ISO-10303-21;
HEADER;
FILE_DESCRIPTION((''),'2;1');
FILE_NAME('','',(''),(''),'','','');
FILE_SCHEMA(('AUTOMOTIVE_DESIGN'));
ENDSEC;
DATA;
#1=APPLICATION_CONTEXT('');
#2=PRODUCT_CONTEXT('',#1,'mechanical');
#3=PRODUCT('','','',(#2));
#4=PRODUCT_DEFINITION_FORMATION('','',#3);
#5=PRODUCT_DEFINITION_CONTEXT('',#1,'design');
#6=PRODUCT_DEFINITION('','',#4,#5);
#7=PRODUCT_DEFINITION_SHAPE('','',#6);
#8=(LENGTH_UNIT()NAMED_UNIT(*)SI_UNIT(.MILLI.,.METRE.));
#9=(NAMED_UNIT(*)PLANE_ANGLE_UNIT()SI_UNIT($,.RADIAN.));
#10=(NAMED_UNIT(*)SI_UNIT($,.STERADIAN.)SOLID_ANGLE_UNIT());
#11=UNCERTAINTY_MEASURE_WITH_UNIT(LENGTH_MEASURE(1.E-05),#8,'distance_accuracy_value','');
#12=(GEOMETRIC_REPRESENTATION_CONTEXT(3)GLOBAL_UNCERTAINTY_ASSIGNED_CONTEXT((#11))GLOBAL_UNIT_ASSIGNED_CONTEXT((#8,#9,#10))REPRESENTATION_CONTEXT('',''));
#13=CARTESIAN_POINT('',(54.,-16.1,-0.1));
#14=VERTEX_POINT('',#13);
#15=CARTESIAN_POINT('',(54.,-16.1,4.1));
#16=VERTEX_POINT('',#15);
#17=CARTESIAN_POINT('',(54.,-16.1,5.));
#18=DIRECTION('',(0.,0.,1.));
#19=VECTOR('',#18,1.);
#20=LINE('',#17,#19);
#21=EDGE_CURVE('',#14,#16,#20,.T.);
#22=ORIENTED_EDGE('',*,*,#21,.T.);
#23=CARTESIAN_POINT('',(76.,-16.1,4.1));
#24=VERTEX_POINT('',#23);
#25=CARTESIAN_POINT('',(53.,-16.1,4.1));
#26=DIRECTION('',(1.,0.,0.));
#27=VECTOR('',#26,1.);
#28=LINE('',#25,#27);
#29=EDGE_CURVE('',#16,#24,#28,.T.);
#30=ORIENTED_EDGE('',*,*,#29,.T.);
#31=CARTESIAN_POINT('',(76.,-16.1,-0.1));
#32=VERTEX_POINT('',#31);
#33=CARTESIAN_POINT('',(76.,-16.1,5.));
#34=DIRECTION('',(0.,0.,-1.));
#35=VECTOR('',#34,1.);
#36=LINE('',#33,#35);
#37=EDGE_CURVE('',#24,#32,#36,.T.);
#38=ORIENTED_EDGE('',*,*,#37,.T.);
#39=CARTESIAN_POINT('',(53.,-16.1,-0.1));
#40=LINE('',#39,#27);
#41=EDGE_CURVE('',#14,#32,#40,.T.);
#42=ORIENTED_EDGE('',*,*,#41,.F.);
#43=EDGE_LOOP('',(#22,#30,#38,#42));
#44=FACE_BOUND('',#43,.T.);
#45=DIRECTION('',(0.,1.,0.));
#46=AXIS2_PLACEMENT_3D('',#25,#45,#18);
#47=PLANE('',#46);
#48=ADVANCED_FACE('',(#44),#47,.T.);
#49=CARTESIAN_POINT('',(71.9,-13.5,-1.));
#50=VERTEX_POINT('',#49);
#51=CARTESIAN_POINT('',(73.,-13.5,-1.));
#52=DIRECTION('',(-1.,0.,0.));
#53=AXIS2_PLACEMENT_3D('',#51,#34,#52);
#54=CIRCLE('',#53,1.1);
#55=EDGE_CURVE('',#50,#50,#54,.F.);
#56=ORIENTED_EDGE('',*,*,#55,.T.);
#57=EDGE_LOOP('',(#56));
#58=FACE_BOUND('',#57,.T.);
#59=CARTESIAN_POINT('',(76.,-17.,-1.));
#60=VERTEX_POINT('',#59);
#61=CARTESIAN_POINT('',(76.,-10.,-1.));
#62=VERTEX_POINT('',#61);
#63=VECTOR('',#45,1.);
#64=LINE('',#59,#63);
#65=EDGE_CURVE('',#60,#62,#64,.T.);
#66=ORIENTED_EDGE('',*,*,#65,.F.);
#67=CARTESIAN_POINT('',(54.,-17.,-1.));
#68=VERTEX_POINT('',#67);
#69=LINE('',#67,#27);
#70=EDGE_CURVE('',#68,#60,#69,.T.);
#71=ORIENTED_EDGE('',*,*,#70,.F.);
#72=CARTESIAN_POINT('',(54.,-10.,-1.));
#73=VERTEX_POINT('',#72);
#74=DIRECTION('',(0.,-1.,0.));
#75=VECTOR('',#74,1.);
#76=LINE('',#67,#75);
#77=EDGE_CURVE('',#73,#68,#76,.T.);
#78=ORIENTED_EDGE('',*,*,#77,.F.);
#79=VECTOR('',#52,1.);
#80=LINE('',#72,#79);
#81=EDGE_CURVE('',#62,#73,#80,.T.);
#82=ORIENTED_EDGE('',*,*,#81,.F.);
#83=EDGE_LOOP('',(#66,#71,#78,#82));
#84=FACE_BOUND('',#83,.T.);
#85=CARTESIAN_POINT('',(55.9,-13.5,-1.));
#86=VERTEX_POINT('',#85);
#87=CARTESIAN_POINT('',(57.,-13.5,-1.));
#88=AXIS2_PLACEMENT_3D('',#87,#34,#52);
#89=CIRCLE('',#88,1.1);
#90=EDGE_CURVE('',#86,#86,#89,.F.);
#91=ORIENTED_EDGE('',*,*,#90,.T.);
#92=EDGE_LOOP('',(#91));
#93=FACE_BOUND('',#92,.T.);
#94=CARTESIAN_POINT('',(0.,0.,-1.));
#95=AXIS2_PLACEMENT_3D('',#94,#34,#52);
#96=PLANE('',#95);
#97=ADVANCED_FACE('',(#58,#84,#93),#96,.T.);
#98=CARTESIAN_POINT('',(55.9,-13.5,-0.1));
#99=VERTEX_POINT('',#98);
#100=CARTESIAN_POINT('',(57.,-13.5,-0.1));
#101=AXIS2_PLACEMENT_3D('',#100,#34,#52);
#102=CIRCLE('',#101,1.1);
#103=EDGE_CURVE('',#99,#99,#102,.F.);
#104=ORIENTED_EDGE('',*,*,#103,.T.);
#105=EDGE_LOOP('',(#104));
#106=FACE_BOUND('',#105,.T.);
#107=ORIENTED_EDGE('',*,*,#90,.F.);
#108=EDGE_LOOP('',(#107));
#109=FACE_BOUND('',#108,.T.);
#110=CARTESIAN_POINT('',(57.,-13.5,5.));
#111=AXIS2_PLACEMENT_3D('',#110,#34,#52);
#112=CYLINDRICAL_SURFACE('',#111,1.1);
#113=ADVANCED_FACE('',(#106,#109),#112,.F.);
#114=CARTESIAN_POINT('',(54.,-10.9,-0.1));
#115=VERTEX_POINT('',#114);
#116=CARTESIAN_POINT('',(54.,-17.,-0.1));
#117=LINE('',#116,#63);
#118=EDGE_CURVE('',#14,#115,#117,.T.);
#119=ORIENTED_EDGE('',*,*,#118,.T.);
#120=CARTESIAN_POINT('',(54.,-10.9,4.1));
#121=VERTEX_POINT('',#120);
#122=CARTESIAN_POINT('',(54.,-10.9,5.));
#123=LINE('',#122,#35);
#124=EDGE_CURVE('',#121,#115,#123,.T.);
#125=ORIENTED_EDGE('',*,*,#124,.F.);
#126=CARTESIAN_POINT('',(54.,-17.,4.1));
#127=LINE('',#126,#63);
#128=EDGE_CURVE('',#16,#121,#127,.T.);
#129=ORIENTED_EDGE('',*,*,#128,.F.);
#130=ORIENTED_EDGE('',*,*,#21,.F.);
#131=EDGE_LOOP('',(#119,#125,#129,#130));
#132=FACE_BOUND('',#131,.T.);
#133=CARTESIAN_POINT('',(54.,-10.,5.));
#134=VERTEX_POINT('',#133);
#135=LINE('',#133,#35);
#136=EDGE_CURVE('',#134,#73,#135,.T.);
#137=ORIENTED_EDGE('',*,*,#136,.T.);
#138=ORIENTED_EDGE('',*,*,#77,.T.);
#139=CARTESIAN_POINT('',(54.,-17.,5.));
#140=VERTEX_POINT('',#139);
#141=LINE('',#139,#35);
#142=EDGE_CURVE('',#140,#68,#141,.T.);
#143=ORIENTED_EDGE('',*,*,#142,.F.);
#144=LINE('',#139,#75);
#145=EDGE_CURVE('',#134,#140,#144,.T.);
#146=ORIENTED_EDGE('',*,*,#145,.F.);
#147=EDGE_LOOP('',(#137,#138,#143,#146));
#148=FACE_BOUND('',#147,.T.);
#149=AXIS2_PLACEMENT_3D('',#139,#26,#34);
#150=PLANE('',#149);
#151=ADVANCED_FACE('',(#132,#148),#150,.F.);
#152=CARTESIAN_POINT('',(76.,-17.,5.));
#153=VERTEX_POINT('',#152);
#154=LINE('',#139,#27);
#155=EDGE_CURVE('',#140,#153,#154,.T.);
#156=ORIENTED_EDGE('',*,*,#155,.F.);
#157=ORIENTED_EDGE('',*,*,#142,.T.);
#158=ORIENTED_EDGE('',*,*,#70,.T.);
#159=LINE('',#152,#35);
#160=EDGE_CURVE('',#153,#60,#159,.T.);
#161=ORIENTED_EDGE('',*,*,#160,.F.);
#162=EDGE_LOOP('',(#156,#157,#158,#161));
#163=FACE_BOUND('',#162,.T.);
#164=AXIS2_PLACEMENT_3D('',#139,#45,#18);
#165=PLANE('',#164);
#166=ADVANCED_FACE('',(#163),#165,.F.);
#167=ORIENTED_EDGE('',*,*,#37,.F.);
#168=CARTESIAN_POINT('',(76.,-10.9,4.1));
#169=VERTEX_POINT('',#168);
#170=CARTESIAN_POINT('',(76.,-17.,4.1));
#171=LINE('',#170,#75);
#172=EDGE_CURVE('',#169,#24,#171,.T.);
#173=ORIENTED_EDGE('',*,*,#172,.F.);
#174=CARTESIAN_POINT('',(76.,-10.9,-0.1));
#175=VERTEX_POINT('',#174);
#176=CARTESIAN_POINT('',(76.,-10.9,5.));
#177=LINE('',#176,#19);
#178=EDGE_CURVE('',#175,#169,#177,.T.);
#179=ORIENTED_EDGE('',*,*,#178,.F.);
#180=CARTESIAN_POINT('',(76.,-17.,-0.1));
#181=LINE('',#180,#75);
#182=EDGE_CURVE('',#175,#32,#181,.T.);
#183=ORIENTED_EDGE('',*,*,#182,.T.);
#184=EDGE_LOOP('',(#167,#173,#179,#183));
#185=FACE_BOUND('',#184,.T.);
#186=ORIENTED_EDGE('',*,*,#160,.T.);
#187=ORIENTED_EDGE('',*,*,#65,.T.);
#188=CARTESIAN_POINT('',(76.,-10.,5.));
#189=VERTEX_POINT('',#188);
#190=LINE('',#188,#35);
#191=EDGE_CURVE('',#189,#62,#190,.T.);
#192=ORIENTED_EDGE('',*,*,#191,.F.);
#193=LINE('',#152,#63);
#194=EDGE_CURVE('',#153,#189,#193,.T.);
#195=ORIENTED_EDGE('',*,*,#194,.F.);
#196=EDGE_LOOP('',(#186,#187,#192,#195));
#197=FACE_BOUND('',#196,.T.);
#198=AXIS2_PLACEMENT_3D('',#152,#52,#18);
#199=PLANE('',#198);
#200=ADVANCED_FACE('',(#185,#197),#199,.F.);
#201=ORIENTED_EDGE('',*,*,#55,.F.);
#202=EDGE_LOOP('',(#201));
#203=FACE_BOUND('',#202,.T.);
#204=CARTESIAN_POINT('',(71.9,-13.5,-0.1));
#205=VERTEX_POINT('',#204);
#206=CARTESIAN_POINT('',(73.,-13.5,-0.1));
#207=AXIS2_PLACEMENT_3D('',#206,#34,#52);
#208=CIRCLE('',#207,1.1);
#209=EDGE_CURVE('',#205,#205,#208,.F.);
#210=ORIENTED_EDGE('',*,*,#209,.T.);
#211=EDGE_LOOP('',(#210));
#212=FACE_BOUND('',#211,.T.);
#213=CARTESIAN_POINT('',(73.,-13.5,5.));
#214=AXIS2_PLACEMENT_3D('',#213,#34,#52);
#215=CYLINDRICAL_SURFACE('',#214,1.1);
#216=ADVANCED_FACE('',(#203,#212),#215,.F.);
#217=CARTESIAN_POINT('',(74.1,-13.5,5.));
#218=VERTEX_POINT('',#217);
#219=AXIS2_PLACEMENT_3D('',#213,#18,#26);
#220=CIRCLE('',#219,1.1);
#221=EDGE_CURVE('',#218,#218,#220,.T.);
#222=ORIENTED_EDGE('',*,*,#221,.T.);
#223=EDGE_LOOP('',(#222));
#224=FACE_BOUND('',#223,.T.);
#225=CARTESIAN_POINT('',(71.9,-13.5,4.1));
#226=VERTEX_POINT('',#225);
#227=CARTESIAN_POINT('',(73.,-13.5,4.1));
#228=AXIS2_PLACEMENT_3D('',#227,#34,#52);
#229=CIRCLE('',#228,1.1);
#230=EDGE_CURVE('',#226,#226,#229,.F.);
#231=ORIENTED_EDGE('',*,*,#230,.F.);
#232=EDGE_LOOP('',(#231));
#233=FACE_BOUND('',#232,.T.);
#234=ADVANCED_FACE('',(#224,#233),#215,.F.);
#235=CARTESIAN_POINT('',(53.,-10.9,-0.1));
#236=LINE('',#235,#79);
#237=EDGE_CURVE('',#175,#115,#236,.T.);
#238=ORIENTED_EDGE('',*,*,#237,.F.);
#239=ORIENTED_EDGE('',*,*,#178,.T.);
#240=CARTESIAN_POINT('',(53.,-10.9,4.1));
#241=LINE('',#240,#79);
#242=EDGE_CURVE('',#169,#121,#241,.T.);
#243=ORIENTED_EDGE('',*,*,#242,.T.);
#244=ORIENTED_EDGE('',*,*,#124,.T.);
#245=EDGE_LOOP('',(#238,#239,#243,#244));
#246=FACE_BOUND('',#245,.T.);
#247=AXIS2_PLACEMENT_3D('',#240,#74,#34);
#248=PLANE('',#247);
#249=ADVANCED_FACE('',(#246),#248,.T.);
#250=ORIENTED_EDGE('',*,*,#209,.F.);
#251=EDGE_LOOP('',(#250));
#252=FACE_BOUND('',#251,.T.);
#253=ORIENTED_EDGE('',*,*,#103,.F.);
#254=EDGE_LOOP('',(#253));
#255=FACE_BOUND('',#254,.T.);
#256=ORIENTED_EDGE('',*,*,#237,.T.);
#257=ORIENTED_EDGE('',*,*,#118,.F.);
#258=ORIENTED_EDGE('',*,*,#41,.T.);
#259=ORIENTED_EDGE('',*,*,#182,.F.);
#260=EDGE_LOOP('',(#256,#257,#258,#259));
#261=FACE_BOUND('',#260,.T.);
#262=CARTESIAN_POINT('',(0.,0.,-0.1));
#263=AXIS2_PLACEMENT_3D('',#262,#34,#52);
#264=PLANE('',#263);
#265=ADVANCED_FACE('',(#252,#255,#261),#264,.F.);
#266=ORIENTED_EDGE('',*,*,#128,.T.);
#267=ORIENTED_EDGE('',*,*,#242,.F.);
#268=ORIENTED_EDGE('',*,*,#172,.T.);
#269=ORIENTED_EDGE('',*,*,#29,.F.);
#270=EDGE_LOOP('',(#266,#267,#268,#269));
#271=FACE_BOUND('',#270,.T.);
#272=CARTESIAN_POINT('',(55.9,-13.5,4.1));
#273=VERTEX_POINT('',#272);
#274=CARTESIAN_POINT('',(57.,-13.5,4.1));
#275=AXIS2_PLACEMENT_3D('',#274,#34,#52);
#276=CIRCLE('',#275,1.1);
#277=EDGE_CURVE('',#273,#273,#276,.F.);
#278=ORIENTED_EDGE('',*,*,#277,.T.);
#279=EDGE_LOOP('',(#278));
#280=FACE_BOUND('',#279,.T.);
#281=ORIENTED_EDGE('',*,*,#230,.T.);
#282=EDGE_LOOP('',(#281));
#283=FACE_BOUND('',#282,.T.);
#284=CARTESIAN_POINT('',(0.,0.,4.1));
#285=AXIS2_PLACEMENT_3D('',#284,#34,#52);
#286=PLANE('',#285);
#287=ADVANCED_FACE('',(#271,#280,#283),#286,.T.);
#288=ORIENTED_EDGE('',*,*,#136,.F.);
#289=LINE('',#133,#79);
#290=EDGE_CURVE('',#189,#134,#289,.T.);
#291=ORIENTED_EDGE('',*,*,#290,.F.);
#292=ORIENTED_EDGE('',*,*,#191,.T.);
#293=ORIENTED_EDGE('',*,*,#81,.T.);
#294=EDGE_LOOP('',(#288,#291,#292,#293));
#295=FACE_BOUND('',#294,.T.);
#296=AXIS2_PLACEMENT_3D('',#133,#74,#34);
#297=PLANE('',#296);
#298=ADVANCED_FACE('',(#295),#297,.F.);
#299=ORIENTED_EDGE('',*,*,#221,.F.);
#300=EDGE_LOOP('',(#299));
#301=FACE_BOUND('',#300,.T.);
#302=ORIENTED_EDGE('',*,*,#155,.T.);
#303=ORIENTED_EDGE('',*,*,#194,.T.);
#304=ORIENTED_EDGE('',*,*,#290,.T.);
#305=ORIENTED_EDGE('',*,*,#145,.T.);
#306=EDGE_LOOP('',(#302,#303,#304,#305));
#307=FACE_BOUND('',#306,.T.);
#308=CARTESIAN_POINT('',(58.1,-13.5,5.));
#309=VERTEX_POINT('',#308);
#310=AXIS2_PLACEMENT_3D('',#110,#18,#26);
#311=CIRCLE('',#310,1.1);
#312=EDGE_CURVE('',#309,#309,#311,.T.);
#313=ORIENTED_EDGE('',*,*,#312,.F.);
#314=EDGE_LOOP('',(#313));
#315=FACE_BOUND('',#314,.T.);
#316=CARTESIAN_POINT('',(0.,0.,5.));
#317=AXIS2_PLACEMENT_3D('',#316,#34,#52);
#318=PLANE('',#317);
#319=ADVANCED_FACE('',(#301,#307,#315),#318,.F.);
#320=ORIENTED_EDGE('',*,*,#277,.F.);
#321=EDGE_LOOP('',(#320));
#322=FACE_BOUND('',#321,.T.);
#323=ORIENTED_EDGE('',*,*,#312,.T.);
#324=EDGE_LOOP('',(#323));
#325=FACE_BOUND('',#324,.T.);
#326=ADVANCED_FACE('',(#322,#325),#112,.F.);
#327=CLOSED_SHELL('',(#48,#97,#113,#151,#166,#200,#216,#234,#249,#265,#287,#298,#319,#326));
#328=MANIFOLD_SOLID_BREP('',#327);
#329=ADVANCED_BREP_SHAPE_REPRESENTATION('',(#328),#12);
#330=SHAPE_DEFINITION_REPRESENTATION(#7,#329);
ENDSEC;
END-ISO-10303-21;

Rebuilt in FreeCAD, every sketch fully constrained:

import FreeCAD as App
import Part
import Sketcher

V = App.Vector
Q = App.Units.Quantity


def add_polygon(sketch, points):
    """Adds a closed chain of lines whose ends are joined by coincident constraints."""
    first, n = sketch.GeometryCount, len(points)
    for a, b in zip(points, points[1:] + points[:1]):
        sketch.addGeometry(Part.LineSegment(App.Vector(*a, 0), App.Vector(*b, 0)), False)
    for i in range(n):
        sketch.addConstraint(Sketcher.Constraint("Coincident", first + i, 2, first + (i + 1) % n, 1))

doc = App.newDocument("Part")
body = doc.addObject("PartDesign::Body", "Body")

# Sketch on XY plane
sketch1 = body.newObject("Sketcher::SketchObject", "Sketch")
sketch1.AttachmentSupport = (doc.getObject("XY_Plane"), [""])
sketch1.MapMode = "FlatFace"
sketch1.AttachmentOffset = App.Placement(V(0, 0, -1), App.Rotation())
add_polygon(sketch1, [(54, -10), (54, -17), (76, -17), (76, -10)])  # lines 0-3
sketch1.addConstraint(Sketcher.Constraint("Vertical", 0))
sketch1.addConstraint(Sketcher.Constraint("Horizontal", 1))
sketch1.addConstraint(Sketcher.Constraint("Vertical", 2))
sketch1.addConstraint(Sketcher.Constraint("Horizontal", 3))
sketch1.addConstraint(Sketcher.Constraint("DistanceX", 1, 1, 1, 2, Q("22 mm")))
sketch1.addConstraint(Sketcher.Constraint("DistanceY", 0, 2, 0, 1, Q("7 mm")))
sketch1.addConstraint(Sketcher.Constraint("DistanceX", -1, 1, 0, 2, Q("54 mm")))
sketch1.addConstraint(Sketcher.Constraint("DistanceY", 0, 2, -1, 1, Q("17 mm")))
pad1 = body.newObject("PartDesign::Pad", "Pad")
pad1.Profile = sketch1
pad1.Length = 6

# Sketch on XY plane
sketch2 = body.newObject("Sketcher::SketchObject", "Sketch001")
sketch2.AttachmentSupport = (doc.getObject("XY_Plane"), [""])
sketch2.MapMode = "FlatFace"
sketch2.AttachmentOffset = App.Placement(V(0, 0, -0.1), App.Rotation())
add_polygon(sketch2, [(53, -10.9), (53, -16.1), (77, -16.1), (77, -10.9)])  # lines 0-3
sketch2.addConstraint(Sketcher.Constraint("Vertical", 0))
sketch2.addConstraint(Sketcher.Constraint("Horizontal", 1))
sketch2.addConstraint(Sketcher.Constraint("Vertical", 2))
sketch2.addConstraint(Sketcher.Constraint("Horizontal", 3))
sketch2.addConstraint(Sketcher.Constraint("DistanceX", 1, 1, 1, 2, Q("24 mm")))
sketch2.addConstraint(Sketcher.Constraint("DistanceY", 0, 2, 0, 1, Q("5.2 mm")))
sketch2.addConstraint(Sketcher.Constraint("DistanceX", -1, 1, 0, 2, Q("53 mm")))
sketch2.addConstraint(Sketcher.Constraint("DistanceY", 0, 2, -1, 1, Q("16.1 mm")))
pocket1 = body.newObject("PartDesign::Pocket", "Pocket")
pocket1.Profile = sketch2
pocket1.Length = 4.2
pocket1.Reversed = True

# Sketch on XY plane
sketch3 = body.newObject("Sketcher::SketchObject", "Sketch002")
sketch3.AttachmentSupport = (doc.getObject("XY_Plane"), [""])
sketch3.MapMode = "FlatFace"
sketch3.AttachmentOffset = App.Placement(V(0, 0, -50), App.Rotation())
sketch3.addGeometry(Part.Circle(V(57, -13.5, 0), V(0, 0, 1), 1.1), False)
sketch3.addGeometry(Part.Circle(V(73, -13.5, 0), V(0, 0, 1), 1.1), False)
sketch3.addConstraint(Sketcher.Constraint("Equal", 0, 1))
sketch3.addConstraint(Sketcher.Constraint("Horizontal", 0, 3, 1, 3))
sketch3.addConstraint(Sketcher.Constraint("Diameter", 0, Q("2.2 mm")))
sketch3.addConstraint(Sketcher.Constraint("DistanceX", -1, 1, 0, 3, Q("57 mm")))
sketch3.addConstraint(Sketcher.Constraint("DistanceX", -1, 1, 1, 3, Q("73 mm")))
sketch3.addConstraint(Sketcher.Constraint("DistanceY", 0, 3, -1, 1, Q("13.5 mm")))
pocket2 = body.newObject("PartDesign::Pocket", "Pocket001")
pocket2.Profile = sketch3
pocket2.Type = "ThroughAll"
pocket2.Reversed = True

doc.recompute()
